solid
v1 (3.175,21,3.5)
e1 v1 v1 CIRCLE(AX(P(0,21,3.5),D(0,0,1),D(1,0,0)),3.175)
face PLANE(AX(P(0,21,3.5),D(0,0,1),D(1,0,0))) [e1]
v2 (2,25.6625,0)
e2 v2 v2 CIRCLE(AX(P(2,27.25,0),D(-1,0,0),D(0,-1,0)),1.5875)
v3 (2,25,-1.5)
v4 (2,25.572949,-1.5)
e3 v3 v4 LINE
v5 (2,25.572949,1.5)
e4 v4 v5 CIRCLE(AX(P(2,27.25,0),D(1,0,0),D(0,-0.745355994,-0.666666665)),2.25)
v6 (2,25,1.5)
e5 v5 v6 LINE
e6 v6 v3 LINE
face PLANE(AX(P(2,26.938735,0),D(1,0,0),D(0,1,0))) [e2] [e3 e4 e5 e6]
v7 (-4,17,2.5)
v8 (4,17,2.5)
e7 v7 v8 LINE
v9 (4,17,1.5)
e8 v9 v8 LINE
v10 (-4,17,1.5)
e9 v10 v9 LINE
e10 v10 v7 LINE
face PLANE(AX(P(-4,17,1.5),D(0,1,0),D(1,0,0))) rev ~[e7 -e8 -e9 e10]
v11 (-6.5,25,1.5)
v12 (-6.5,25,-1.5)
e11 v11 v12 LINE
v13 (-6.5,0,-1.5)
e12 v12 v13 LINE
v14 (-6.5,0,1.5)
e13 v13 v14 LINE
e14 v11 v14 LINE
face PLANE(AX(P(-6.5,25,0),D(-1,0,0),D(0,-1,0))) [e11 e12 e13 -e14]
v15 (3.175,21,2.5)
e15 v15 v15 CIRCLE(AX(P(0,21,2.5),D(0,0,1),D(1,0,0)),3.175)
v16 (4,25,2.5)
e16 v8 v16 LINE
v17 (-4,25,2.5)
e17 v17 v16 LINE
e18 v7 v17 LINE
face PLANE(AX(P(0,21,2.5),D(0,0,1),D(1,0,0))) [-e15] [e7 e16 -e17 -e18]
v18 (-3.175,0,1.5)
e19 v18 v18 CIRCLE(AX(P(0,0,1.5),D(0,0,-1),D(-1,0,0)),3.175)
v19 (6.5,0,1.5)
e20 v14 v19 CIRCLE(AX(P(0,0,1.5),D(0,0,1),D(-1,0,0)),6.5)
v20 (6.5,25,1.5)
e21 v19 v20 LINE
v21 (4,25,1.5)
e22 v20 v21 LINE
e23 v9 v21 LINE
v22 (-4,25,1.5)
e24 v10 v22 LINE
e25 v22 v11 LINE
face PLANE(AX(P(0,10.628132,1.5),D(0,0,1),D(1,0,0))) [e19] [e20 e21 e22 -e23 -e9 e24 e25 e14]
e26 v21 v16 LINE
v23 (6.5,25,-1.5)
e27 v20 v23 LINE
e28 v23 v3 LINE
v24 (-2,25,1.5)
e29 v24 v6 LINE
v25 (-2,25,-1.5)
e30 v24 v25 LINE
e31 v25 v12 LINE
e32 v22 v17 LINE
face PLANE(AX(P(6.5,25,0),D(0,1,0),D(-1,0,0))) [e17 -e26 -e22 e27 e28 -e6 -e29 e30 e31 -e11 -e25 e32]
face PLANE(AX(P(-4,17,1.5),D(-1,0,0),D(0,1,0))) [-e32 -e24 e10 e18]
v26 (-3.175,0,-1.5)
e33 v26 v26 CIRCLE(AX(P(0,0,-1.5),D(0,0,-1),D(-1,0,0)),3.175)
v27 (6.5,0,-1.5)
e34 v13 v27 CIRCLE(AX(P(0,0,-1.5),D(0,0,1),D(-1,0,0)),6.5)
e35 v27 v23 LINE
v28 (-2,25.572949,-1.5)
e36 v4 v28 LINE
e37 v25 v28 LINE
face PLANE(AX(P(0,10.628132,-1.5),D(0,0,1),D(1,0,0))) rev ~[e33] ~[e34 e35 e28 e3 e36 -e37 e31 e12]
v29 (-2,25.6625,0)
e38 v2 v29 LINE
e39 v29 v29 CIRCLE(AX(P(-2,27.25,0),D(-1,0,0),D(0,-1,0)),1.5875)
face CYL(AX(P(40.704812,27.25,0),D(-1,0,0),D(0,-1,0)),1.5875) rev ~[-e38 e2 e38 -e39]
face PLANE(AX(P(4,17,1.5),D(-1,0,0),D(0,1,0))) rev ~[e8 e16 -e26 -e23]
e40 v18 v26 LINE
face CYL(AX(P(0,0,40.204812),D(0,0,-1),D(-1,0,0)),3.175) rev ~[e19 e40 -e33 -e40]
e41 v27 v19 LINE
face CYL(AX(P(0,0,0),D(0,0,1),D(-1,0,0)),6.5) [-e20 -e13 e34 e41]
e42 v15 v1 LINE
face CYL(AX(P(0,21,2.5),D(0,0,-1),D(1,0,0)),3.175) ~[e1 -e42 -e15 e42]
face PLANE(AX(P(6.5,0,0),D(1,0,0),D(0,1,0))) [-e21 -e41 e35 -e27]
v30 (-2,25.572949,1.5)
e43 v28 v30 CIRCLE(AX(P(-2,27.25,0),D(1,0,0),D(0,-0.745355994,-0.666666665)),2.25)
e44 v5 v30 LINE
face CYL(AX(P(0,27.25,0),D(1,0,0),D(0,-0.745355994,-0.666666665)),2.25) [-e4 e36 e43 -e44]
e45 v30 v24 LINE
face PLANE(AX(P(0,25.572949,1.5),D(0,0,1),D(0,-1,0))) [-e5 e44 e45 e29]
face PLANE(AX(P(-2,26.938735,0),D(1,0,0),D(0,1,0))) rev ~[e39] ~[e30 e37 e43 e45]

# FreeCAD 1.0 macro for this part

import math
import FreeCAD as App
import Part
import Sketcher
from FreeCAD import Vector


def add_polygon(sketch, points):
    """Adds a closed chain of lines whose ends are joined by coincident constraints."""
    first, n = sketch.GeometryCount, len(points)
    for a, b in zip(points, points[1:] + points[:1]):
        sketch.addGeometry(Part.LineSegment(App.Vector(*a, 0), App.Vector(*b, 0)), False)
    for i in range(n):
        sketch.addConstraint(Sketcher.Constraint("Coincident", first + i, 2, first + (i + 1) % n, 1))

doc = App.newDocument("Part")
body = doc.addObject("PartDesign::Body", "Body")

# Sketch on XY plane
sketch1 = doc.addObject("Sketcher::SketchObject", "Sketch")
body.addObject(sketch1)
sketch1.AttachmentSupport = (doc.XY_Plane, [""])
sketch1.MapMode = "FlatFace"
sketch1.addGeometry([
    Part.LineSegment(Vector(-6.5, 25, 0), Vector(-6.5, 0, 0)),
    Part.ArcOfCircle(Part.Circle(Vector(0, 0, 0), Vector(0, 0, 1), 6.5), math.radians(180), math.radians(360)),
    Part.LineSegment(Vector(6.5, 0, 0), Vector(6.5, 25, 0)),
    Part.LineSegment(Vector(6.5, 25, 0), Vector(-6.5, 25, 0)),
], False)
sketch1.addConstraint([
    Sketcher.Constraint("Tangent", 0, 2, 1, 1),
    Sketcher.Constraint("Tangent", 1, 2, 2, 1),
    Sketcher.Constraint("Coincident", 2, 2, 3, 1),
    Sketcher.Constraint("Coincident", 3, 2, 0, 1),
    Sketcher.Constraint("Vertical", 0),
    Sketcher.Constraint("Vertical", 2),
    Sketcher.Constraint("Horizontal", 3),
    Sketcher.Constraint("Coincident", 1, 3, -1, 1),
    Sketcher.Constraint("Radius", 1, 6.5),
    Sketcher.Constraint("DistanceY", 0, 2, 0, 1, 25.0),
])
pad1 = doc.addObject("PartDesign::Pad", "Pad")
body.addObject(pad1)
pad1.Profile = sketch1
pad1.Length = 3
pad1.Midplane = True

# Sketch on XY plane
sketch2 = doc.addObject("Sketcher::SketchObject", "Sketch001")
body.addObject(sketch2)
sketch2.AttachmentSupport = (doc.XY_Plane, [""])
sketch2.MapMode = "FlatFace"
sketch2.AttachmentOffset = App.Placement(Vector(0, 0, 1.5), App.Rotation())
add_polygon(sketch2, [(-4, 25), (-4, 17), (4, 17), (4, 25)])  # lines 0-3
sketch2.addConstraint([
    Sketcher.Constraint("Vertical", 0),
    Sketcher.Constraint("Horizontal", 1),
    Sketcher.Constraint("Vertical", 2),
    Sketcher.Constraint("Horizontal", 3),
    Sketcher.Constraint("Equal", 3, 0),
    Sketcher.Constraint("DistanceX", 1, 1, 1, 2, 8.0),
    Sketcher.Constraint("DistanceX", 0, 2, -1, 1, 4.0),
    Sketcher.Constraint("DistanceY", -1, 1, 0, 2, 17.0),
])
pad2 = doc.addObject("PartDesign::Pad", "Pad001")
body.addObject(pad2)
pad2.Profile = sketch2
pad2.Length = 1

# Sketch on XY plane
sketch3 = doc.addObject("Sketcher::SketchObject", "Sketch002")
body.addObject(sketch3)
sketch3.AttachmentSupport = (doc.XY_Plane, [""])
sketch3.MapMode = "FlatFace"
sketch3.AttachmentOffset = App.Placement(Vector(0, 0, 2.5), App.Rotation())
sketch3.addGeometry(Part.Circle(Vector(0, 21, 0), Vector(0, 0, 1), 3.175), False)
sketch3.addConstraint([
    Sketcher.Constraint("PointOnObject", 0, 3, -2),
    Sketcher.Constraint("Diameter", 0, 6.35),
    Sketcher.Constraint("DistanceY", -1, 1, 0, 3, 21.0),
])
pad3 = doc.addObject("PartDesign::Pad", "Pad002")
body.addObject(pad3)
pad3.Profile = sketch3
pad3.Length = 1

# Sketch on YZ plane
sketch4 = doc.addObject("Sketcher::SketchObject", "Sketch003")
body.addObject(sketch4)
sketch4.AttachmentSupport = (doc.YZ_Plane, [""])
sketch4.MapMode = "FlatFace"
sketch4.addGeometry([
    Part.LineSegment(Vector(25.572949, 1.5, 0), Vector(25, 1.5, 0)),
    Part.LineSegment(Vector(25, 1.5, 0), Vector(25, -1.5, 0)),
    Part.LineSegment(Vector(25, -1.5, 0), Vector(25.572949, -1.5, 0)),
    Part.ArcOfCircle(Part.Circle(Vector(27.25, 0, 0), Vector(0, 0, 1), 2.25), math.radians(-138.189685), math.radians(138.189685)),
], False)
sketch4.addConstraint([
    Sketcher.Constraint("Coincident", 0, 2, 1, 1),
    Sketcher.Constraint("Coincident", 1, 2, 2, 1),
    Sketcher.Constraint("Coincident", 2, 2, 3, 1),
    Sketcher.Constraint("Coincident", 3, 2, 0, 1),
    Sketcher.Constraint("Horizontal", 0),
    Sketcher.Constraint("Vertical", 1),
    Sketcher.Constraint("Horizontal", 2),
    Sketcher.Constraint("Symmetric", 2, 2, 3, 2, -1),
    Sketcher.Constraint("DistanceY", 1, 2, 1, 1, 3.0),
    Sketcher.Constraint("Radius", 3, 2.25),
    Sketcher.Constraint("DistanceX", -1, 1, 0, 2, 25.0),
    Sketcher.Constraint("DistanceX", -1, 1, 3, 3, 27.25),
])
pad4 = doc.addObject("PartDesign::Pad", "Pad003")
body.addObject(pad4)
pad4.Profile = sketch4
pad4.Length = 4
pad4.Midplane = True

# Sketch on YZ plane
sketch5 = doc.addObject("Sketcher::SketchObject", "Sketch004")
body.addObject(sketch5)
sketch5.AttachmentSupport = (doc.YZ_Plane, [""])
sketch5.MapMode = "FlatFace"
sketch5.AttachmentOffset = App.Placement(Vector(0, 0, 2), App.Rotation())
sketch5.addGeometry(Part.Circle(Vector(27.25, 0, 0), Vector(0, 0, 1), 1.5875), False)
sketch5.addConstraint([
    Sketcher.Constraint("PointOnObject", 0, 3, -1),
    Sketcher.Constraint("Diameter", 0, 3.175),
    Sketcher.Constraint("DistanceX", -1, 1, 0, 3, 27.25),
])
doc.recompute()
hole = doc.addObject("PartDesign::Hole", "Hole")
body.addObject(hole)
hole.Profile = sketch5
hole.ThreadType = "None"
hole.Diameter = 3.175
hole.DepthType = "ThroughAll"

# Sketch on XY plane
sketch6 = doc.addObject("Sketcher::SketchObject", "Sketch005")
body.addObject(sketch6)
sketch6.AttachmentSupport = (doc.XY_Plane, [""])
sketch6.MapMode = "FlatFace"
sketch6.AttachmentOffset = App.Placement(Vector(0, 0, 1.5), App.Rotation())
sketch6.addGeometry(Part.Circle(Vector(0, 0, 0), Vector(0, 0, 1), 3.175), False)
sketch6.addConstraint([
    Sketcher.Constraint("Coincident", 0, 3, -1, 1),
    Sketcher.Constraint("Diameter", 0, 6.35),
])
doc.recompute()
hole2 = doc.addObject("PartDesign::Hole", "Hole001")
body.addObject(hole2)
hole2.Profile = sketch6
hole2.ThreadType = "None"
hole2.Diameter = 6.35
hole2.DepthType = "ThroughAll"

doc.recompute()
